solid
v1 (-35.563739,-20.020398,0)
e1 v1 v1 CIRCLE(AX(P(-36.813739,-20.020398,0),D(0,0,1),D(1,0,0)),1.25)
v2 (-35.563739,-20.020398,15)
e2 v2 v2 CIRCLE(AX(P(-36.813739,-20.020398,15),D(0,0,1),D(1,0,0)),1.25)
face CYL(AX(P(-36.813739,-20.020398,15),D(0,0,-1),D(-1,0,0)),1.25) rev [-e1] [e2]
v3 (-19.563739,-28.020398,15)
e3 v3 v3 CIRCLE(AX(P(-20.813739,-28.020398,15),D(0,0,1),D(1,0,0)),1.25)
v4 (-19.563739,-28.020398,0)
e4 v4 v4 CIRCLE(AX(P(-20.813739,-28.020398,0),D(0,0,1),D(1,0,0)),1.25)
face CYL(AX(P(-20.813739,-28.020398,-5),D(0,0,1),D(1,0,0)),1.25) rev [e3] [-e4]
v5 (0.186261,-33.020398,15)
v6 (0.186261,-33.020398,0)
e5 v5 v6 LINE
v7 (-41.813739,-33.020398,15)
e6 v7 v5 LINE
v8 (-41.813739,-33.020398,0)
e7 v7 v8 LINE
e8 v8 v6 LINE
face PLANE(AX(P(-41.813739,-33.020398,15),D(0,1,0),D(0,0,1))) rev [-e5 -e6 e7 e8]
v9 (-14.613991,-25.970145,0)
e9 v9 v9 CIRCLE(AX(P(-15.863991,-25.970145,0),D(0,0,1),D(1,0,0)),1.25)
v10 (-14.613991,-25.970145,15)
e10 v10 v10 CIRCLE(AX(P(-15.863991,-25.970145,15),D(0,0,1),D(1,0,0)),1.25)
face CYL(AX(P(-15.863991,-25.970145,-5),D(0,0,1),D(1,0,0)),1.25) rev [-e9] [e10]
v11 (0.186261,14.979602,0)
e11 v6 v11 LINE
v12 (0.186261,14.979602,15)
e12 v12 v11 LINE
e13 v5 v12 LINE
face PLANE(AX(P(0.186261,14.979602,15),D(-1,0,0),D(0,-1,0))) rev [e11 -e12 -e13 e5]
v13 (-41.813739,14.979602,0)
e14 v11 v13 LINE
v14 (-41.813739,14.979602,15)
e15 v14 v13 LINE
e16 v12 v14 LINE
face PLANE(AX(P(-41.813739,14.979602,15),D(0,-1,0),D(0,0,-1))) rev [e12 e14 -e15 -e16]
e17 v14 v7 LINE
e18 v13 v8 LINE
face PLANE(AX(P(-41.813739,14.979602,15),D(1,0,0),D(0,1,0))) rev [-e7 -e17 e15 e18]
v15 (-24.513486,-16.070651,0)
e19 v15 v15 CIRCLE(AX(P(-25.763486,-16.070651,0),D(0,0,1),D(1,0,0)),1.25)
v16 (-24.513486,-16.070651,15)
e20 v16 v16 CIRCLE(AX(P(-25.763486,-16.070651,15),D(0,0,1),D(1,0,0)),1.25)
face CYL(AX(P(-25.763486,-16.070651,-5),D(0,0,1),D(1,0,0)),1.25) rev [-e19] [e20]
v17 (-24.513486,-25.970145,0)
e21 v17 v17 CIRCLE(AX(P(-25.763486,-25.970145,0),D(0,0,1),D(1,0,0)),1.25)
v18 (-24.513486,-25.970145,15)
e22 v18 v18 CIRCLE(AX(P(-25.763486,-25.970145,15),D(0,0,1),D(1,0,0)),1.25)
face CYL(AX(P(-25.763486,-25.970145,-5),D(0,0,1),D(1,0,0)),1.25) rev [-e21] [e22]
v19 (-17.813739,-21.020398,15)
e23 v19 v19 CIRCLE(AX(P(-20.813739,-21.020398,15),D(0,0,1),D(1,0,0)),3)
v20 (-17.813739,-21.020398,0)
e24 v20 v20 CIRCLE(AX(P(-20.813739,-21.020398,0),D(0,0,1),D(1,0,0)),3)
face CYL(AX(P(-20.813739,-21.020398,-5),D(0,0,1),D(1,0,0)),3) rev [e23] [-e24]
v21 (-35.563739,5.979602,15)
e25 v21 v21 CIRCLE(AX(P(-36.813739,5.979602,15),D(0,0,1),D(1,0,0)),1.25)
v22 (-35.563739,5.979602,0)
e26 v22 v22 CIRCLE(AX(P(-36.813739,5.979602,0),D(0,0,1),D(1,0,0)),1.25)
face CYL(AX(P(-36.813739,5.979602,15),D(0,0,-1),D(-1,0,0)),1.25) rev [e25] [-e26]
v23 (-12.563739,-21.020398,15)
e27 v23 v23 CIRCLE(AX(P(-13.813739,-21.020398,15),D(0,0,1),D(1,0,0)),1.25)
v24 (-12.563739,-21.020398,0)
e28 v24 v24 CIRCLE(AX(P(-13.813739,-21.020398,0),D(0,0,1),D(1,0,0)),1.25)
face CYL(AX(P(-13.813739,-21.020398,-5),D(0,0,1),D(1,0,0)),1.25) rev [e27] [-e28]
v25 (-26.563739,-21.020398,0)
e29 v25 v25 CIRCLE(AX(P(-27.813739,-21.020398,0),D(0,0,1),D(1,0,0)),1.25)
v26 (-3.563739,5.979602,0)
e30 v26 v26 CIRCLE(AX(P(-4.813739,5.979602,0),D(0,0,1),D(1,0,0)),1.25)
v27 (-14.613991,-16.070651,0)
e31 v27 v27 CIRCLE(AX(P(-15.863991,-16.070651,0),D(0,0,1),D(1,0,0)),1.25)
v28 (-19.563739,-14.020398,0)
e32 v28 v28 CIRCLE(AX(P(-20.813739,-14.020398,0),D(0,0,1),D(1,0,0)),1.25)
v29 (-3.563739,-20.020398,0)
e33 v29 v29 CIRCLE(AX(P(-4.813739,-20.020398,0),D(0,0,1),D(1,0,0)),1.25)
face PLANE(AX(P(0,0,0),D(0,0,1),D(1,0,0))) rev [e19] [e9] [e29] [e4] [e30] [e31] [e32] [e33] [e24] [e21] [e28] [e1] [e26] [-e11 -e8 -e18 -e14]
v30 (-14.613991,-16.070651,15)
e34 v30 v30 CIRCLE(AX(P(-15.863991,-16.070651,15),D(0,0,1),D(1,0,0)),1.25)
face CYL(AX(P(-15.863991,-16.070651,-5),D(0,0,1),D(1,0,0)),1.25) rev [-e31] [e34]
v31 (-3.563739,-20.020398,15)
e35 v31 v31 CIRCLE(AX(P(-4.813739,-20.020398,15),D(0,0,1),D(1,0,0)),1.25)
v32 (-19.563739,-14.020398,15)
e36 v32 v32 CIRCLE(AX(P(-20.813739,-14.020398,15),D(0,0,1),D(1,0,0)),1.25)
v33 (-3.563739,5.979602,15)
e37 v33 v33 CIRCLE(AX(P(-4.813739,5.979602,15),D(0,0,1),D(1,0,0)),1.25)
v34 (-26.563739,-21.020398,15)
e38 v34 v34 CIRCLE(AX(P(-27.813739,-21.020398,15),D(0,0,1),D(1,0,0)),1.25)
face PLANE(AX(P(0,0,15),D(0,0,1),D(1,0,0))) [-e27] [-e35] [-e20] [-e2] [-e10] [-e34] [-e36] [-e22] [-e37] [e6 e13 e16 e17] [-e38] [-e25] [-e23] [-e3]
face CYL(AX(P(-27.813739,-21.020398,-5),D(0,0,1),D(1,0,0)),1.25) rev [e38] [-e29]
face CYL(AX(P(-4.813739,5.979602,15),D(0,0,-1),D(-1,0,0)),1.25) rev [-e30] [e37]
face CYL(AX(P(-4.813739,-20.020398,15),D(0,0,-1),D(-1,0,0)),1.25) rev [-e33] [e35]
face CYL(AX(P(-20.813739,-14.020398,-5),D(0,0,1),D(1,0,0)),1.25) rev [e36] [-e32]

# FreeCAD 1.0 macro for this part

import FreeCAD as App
import Part
import Sketcher

V = App.Vector


def add_polygon(sketch, points):
    """Adds a closed chain of lines whose ends are joined by coincident constraints."""
    first, n = sketch.GeometryCount, len(points)
    for a, b in zip(points, points[1:] + points[:1]):
        sketch.addGeometry(Part.LineSegment(App.Vector(*a, 0), App.Vector(*b, 0)), False)
    for i in range(n):
        sketch.addConstraint(Sketcher.Constraint("Coincident", first + i, 2, first + (i + 1) % n, 1))

doc = App.newDocument("Part")
body = doc.addObject("PartDesign::Body", "Body")

sketch1 = body.newObject("Sketcher::SketchObject", "Sketch")
sketch1.AttachmentSupport = (doc.getObject("XY_Plane"), [""])
sketch1.MapMode = "FlatFace"
add_polygon(sketch1, [(-41.813739, 14.979602), (-41.813739, -33.020398), (0.186261, -33.020398), (0.186261, 14.979602)])
sketch1.addGeometry(Part.Circle(V(-36.813739, -20.020398, 0), V(0, 0, 1), 1.25), False)
sketch1.addGeometry(Part.Circle(V(-4.813739, -20.020398, 0), V(0, 0, 1), 1.25), False)
sketch1.addGeometry(Part.Circle(V(-36.813739, 5.979602, 0), V(0, 0, 1), 1.25), False)
sketch1.addGeometry(Part.Circle(V(-4.813739, 5.979602, 0), V(0, 0, 1), 1.25), False)
sketch1.addConstraint(Sketcher.Constraint("Vertical", 0))
sketch1.addConstraint(Sketcher.Constraint("Horizontal", 1))
sketch1.addConstraint(Sketcher.Constraint("Vertical", 2))
sketch1.addConstraint(Sketcher.Constraint("Horizontal", 3))
sketch1.addConstraint(Sketcher.Constraint("Equal", 4, 5))
sketch1.addConstraint(Sketcher.Constraint("Equal", 5, 6))
sketch1.addConstraint(Sketcher.Constraint("Equal", 6, 7))
sketch1.addConstraint(Sketcher.Constraint("Horizontal", 4, 3, 5, 3))
sketch1.addConstraint(Sketcher.Constraint("Horizontal", 6, 3, 7, 3))
sketch1.addConstraint(Sketcher.Constraint("Vertical", 4, 3, 6, 3))
sketch1.addConstraint(Sketcher.Constraint("Vertical", 5, 3, 7, 3))
sketch1.addConstraint(Sketcher.Constraint("Diameter", 4, 2.5))
sketch1.addConstraint(Sketcher.Constraint("DistanceX", 1, 1, 1, 2, 42.0))
sketch1.addConstraint(Sketcher.Constraint("DistanceY", 0, 2, 0, 1, 48.0))
sketch1.addConstraint(Sketcher.Constraint("DistanceX", 4, 3, 5, 3, 32.0))
sketch1.addConstraint(Sketcher.Constraint("DistanceY", 4, 3, 6, 3, 26.0))
sketch1.addConstraint(Sketcher.Constraint("DistanceX", 0, 2, 4, 3, 5.0))
sketch1.addConstraint(Sketcher.Constraint("DistanceY", 0, 2, 4, 3, 13.0))
sketch1.addConstraint(Sketcher.Constraint("DistanceX", 4, 3, -1, 1, 36.813739))
sketch1.addConstraint(Sketcher.Constraint("DistanceY", 4, 3, -1, 1, 20.020398))
pad1 = body.newObject("PartDesign::Pad", "Pad")
pad1.Profile = sketch1
pad1.Length = 15

sketch2 = body.newObject("Sketcher::SketchObject", "Sketch001")
sketch2.AttachmentSupport = (doc.getObject("XY_Plane"), [""])
sketch2.MapMode = "FlatFace"
sketch2.AttachmentOffset = App.Placement(V(0, 0, 15), App.Rotation())
sketch2.addGeometry(Part.Circle(V(-20.813739, -21.020398, 0), V(0, 0, 1), 3), False)
sketch2.addGeometry(Part.Circle(V(-20.813739, -14.020398, 0), V(0, 0, 1), 1.25), False)
sketch2.addGeometry(Part.Circle(V(-25.763486, -16.070651, 0), V(0, 0, 1), 1.25), False)
sketch2.addGeometry(Part.Circle(V(-27.813739, -21.020398, 0), V(0, 0, 1), 1.25), False)
sketch2.addGeometry(Part.Circle(V(-25.763486, -25.970145, 0), V(0, 0, 1), 1.25), False)
sketch2.addGeometry(Part.Circle(V(-20.813739, -28.020398, 0), V(0, 0, 1), 1.25), False)
sketch2.addGeometry(Part.Circle(V(-15.863991, -25.970145, 0), V(0, 0, 1), 1.25), False)
sketch2.addGeometry(Part.Circle(V(-13.813739, -21.020398, 0), V(0, 0, 1), 1.25), False)
sketch2.addGeometry(Part.Circle(V(-15.863991, -16.070651, 0), V(0, 0, 1), 1.25), False)
sketch2.addConstraint(Sketcher.Constraint("Equal", 1, 2))
sketch2.addConstraint(Sketcher.Constraint("Equal", 2, 3))
sketch2.addConstraint(Sketcher.Constraint("Equal", 3, 4))
sketch2.addConstraint(Sketcher.Constraint("Equal", 4, 5))
sketch2.addConstraint(Sketcher.Constraint("Equal", 5, 6))
sketch2.addConstraint(Sketcher.Constraint("Equal", 6, 7))
sketch2.addConstraint(Sketcher.Constraint("Equal", 7, 8))
sketch2.addConstraint(Sketcher.Constraint("Horizontal", 0, 3, 3, 3))
sketch2.addConstraint(Sketcher.Constraint("Horizontal", 4, 3, 6, 3))
sketch2.addConstraint(Sketcher.Constraint("Horizontal", 3, 3, 7, 3))
sketch2.addConstraint(Sketcher.Constraint("Horizontal", 2, 3, 8, 3))
sketch2.addConstraint(Sketcher.Constraint("Vertical", 0, 3, 1, 3))
sketch2.addConstraint(Sketcher.Constraint("Vertical", 2, 3, 4, 3))
sketch2.addConstraint(Sketcher.Constraint("Vertical", 1, 3, 5, 3))
sketch2.addConstraint(Sketcher.Constraint("Vertical", 6, 3, 8, 3))
sketch2.addConstraint(Sketcher.Constraint("Diameter", 0, 6.0))
sketch2.addConstraint(Sketcher.Constraint("Diameter", 1, 2.5))
sketch2.addConstraint(Sketcher.Constraint("DistanceY", 0, 3, 1, 3, 7.0))
sketch2.addConstraint(Sketcher.Constraint("DistanceX", 3, 3, 0, 3, 7.0))
sketch2.addConstraint(Sketcher.Constraint("DistanceY", 5, 3, 0, 3, 7.0))
sketch2.addConstraint(Sketcher.Constraint("DistanceX", 0, 3, 7, 3, 7.0))
sketch2.addConstraint(Sketcher.Constraint("DistanceX", 0, 3, -1, 1, 20.813739))
sketch2.addConstraint(Sketcher.Constraint("DistanceY", 2, 3, -1, 1, 16.070651))
sketch2.addConstraint(Sketcher.Constraint("DistanceX", 6, 3, -1, 1, 15.863991))
sketch2.addConstraint(Sketcher.Constraint("DistanceY", 0, 3, -1, 1, 21.020398))
sketch2.addConstraint(Sketcher.Constraint("DistanceX", 2, 3, -1, 1, 25.763486))
sketch2.addConstraint(Sketcher.Constraint("DistanceY", 4, 3, -1, 1, 25.970145))
pocket1 = body.newObject("PartDesign::Pocket", "Pocket")
pocket1.Profile = sketch2
pocket1.Length = 20

doc.recompute()
